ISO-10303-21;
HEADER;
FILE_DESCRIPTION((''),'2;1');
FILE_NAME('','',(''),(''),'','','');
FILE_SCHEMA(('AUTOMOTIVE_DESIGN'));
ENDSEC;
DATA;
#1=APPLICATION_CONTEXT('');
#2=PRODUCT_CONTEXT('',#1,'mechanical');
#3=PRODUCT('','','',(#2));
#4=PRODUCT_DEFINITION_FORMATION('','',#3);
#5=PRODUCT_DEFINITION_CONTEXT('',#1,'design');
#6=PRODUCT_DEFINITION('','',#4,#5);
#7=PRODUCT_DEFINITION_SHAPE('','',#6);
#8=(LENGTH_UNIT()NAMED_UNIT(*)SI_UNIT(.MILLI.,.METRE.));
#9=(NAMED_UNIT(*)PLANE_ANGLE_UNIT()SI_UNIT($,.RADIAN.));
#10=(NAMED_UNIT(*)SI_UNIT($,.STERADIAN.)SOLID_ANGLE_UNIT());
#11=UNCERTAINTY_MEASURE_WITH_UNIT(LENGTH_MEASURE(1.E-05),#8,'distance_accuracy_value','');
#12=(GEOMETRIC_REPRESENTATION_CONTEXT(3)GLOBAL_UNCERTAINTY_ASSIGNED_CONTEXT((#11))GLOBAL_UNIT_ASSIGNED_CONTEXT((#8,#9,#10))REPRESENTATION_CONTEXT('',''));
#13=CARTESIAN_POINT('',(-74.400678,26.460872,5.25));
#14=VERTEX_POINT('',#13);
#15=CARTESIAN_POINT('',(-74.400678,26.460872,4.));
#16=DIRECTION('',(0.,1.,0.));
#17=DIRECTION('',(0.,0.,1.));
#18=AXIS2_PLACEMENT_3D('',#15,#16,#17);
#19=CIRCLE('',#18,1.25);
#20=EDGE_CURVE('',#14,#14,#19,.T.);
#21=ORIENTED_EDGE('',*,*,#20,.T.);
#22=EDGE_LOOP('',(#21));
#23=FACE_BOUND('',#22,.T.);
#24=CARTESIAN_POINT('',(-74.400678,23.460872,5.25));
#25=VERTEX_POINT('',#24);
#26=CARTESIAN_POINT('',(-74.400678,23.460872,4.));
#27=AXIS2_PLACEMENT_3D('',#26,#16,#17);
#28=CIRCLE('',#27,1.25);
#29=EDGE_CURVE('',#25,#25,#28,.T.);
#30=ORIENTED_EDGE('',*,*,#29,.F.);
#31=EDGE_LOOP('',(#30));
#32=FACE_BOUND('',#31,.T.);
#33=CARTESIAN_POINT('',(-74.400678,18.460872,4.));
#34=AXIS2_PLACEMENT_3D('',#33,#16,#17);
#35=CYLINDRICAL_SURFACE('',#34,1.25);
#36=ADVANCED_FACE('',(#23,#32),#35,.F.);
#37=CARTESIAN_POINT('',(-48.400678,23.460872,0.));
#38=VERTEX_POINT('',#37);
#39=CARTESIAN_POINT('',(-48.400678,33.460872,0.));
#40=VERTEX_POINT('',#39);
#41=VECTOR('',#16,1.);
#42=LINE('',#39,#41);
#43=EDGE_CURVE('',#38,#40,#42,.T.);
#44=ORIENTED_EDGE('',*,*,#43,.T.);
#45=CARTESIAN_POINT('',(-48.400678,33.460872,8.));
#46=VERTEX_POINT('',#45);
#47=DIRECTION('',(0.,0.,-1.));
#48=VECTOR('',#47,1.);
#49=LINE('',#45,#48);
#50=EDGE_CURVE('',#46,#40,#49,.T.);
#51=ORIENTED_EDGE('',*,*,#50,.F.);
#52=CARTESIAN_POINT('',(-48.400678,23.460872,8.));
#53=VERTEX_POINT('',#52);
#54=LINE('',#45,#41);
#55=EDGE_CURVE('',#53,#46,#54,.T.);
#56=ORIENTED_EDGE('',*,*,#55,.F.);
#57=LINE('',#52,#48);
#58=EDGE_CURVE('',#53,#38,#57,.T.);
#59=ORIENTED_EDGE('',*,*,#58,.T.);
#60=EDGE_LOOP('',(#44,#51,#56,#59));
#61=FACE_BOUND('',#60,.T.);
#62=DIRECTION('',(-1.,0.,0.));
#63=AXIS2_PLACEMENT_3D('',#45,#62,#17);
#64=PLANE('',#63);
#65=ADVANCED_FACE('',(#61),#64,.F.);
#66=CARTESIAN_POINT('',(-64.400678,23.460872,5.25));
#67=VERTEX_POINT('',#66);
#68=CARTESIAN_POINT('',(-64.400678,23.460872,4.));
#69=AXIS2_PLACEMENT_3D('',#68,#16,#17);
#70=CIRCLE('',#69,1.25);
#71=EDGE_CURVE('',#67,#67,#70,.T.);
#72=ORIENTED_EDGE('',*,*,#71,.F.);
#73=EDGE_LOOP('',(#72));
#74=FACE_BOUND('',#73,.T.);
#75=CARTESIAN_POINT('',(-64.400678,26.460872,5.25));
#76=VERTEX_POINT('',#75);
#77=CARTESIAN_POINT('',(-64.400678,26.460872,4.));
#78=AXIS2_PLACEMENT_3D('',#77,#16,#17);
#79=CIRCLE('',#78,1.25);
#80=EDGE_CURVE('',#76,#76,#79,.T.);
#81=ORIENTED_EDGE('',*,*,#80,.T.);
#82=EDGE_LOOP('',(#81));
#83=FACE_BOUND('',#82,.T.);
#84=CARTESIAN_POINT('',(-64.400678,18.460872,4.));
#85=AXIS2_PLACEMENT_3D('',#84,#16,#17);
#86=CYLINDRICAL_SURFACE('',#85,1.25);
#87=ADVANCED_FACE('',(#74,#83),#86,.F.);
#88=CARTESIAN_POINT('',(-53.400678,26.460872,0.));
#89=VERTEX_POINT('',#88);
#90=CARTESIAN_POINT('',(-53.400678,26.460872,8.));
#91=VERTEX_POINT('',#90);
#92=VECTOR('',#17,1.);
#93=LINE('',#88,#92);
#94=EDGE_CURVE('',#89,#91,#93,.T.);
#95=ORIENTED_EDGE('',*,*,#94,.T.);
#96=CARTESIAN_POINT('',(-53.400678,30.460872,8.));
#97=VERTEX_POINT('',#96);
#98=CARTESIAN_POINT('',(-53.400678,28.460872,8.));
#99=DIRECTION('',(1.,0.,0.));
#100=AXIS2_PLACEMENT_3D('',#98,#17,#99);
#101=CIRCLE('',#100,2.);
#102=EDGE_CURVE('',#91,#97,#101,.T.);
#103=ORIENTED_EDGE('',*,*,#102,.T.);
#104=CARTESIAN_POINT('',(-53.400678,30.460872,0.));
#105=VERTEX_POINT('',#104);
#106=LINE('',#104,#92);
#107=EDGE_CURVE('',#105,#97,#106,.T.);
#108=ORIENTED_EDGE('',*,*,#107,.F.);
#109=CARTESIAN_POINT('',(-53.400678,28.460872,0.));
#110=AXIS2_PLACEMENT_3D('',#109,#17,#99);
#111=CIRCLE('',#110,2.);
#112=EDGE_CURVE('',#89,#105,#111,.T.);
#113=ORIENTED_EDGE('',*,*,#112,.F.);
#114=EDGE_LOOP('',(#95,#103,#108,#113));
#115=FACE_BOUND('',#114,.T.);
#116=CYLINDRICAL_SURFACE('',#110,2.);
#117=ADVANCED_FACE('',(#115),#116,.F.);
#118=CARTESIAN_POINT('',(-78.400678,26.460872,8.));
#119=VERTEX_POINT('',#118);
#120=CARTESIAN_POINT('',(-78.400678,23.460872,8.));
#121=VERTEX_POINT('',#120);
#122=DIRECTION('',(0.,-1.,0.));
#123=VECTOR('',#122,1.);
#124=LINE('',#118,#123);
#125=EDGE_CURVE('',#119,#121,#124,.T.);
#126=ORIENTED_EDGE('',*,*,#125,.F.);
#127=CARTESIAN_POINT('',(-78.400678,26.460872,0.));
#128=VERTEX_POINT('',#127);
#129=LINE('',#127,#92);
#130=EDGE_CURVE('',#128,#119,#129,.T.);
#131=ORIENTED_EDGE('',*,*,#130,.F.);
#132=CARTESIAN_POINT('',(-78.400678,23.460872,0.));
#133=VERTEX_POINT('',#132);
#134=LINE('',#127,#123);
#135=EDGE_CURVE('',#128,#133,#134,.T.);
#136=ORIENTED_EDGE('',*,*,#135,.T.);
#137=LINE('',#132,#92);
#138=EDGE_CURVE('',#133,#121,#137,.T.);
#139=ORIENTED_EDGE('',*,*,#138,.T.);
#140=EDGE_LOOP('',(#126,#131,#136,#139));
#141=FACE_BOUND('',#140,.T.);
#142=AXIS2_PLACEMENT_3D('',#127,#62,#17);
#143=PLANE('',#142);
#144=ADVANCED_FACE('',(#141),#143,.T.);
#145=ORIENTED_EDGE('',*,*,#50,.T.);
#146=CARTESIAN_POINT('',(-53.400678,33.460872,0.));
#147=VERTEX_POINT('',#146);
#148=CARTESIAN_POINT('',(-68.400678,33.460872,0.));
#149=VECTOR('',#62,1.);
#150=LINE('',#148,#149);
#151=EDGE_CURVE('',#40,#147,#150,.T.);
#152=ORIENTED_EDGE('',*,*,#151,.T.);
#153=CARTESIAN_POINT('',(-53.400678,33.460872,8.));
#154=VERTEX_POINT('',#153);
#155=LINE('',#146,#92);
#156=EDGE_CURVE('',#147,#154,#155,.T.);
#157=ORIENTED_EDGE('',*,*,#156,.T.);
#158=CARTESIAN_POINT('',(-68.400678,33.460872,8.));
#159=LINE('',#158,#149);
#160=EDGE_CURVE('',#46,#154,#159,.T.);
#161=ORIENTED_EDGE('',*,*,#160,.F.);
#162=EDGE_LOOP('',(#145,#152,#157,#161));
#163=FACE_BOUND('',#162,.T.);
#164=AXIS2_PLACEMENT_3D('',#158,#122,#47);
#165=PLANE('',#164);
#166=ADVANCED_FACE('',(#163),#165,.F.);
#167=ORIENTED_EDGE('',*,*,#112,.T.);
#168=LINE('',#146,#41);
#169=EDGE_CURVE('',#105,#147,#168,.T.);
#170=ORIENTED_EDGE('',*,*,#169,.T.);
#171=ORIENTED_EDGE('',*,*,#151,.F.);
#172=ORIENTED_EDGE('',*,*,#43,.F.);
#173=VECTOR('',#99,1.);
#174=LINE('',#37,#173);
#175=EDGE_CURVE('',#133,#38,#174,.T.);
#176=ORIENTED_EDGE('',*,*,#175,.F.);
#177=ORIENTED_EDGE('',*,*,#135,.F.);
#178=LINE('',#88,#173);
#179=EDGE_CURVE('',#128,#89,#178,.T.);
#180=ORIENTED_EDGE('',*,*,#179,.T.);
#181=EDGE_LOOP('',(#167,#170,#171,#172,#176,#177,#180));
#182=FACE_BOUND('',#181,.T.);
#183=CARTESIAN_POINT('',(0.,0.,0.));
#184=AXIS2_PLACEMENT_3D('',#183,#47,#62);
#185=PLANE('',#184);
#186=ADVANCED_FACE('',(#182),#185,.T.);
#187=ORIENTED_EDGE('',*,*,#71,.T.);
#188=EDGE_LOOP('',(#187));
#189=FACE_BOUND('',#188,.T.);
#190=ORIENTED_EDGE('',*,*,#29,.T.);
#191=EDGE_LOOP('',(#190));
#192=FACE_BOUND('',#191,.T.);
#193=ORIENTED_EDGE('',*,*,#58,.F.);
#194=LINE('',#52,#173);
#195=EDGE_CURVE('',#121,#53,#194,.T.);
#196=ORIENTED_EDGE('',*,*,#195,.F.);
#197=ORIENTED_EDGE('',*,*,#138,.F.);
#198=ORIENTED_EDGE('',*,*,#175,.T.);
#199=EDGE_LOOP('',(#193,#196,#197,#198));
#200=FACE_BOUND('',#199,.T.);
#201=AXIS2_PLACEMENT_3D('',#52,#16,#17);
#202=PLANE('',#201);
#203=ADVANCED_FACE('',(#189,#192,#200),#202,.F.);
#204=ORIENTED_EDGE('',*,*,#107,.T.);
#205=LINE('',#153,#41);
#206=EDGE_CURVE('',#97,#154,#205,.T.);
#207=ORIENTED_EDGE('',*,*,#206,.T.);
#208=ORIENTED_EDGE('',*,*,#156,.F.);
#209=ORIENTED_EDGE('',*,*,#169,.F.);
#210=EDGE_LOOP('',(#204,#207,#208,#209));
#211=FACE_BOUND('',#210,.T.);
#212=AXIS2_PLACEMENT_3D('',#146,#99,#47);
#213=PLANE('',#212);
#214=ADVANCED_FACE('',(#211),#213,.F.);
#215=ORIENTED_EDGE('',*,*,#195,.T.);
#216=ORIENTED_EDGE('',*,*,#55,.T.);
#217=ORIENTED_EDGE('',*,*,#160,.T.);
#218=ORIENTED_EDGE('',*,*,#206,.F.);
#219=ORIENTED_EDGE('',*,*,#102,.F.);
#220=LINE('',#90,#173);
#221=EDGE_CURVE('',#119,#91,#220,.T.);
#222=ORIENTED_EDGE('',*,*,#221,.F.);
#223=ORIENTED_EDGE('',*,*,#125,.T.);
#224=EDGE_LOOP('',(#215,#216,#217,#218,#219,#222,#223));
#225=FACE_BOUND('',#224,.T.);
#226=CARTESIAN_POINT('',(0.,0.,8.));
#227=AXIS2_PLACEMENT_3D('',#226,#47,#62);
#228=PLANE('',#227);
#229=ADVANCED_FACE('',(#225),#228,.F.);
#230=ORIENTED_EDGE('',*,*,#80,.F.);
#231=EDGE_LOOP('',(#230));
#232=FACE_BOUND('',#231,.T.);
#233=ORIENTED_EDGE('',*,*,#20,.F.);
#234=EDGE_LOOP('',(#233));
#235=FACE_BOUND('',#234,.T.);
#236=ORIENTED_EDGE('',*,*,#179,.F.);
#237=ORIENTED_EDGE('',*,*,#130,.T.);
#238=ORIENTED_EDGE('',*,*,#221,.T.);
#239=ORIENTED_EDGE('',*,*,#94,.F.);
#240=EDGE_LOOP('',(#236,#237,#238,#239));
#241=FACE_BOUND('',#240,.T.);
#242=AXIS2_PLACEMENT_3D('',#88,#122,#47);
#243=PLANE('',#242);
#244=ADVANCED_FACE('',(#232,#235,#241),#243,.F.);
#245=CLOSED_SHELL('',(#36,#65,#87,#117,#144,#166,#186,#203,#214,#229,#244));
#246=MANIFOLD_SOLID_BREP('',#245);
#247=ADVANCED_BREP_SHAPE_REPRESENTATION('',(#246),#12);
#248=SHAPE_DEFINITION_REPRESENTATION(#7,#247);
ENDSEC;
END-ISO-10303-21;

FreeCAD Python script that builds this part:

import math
import FreeCAD as App
import Part
import Sketcher

V = App.Vector


def add_polygon(sketch, points):
    """Adds a closed chain of lines whose ends are joined by coincident constraints."""
    first, n = sketch.GeometryCount, len(points)
    for a, b in zip(points, points[1:] + points[:1]):
        sketch.addGeometry(Part.LineSegment(App.Vector(*a, 0), App.Vector(*b, 0)), False)
    for i in range(n):
        sketch.addConstraint(Sketcher.Constraint("Coincident", first + i, 2, first + (i + 1) % n, 1))

doc = App.newDocument("Part")
body = doc.addObject("PartDesign::Body", "Body")

sketch1 = body.newObject("Sketcher::SketchObject", "Sketch")
sketch1.AttachmentSupport = (doc.getObject("XY_Plane"), [""])
sketch1.MapMode = "FlatFace"
add_polygon(sketch1, [(-68, 33), (-68, 23), (-48, 23), (-48, 33)])
sketch1.addConstraint([
    Sketcher.Constraint("Vertical", 0),
    Sketcher.Constraint("Horizontal", 1),
    Sketcher.Constraint("Vertical", 2),
    Sketcher.Constraint("Horizontal", 3),
    Sketcher.Constraint("DistanceX", 1, 1, 1, 2, 20.0),
    Sketcher.Constraint("DistanceY", 0, 2, 0, 1, 10.0),
    Sketcher.Constraint("DistanceX", 0, 2, -1, 1, 68.400678),
    Sketcher.Constraint("DistanceY", -1, 1, 0, 2, 23.460872),
])
pad1 = body.newObject("PartDesign::Pad", "Pad")
pad1.Profile = sketch1
pad1.Length = 8

sketch2 = body.newObject("Sketcher::SketchObject", "Sketch001")
sketch2.AttachmentSupport = (doc.getObject("XY_Plane"), [""])
sketch2.MapMode = "FlatFace"
sketch2.AttachmentOffset = App.Placement(V(0, 0, 8), App.Rotation())
sketch2.addGeometry([
    Part.LineSegment(V(-53.4, 30.5, 0), V(-53.4, 33.5, 0)),
    Part.LineSegment(V(-53.4, 33.5, 0), V(-68.4, 33.5, 0)),
    Part.LineSegment(V(-68.4, 33.5, 0), V(-68.4, 26.5, 0)),
    Part.LineSegment(V(-68.4, 26.5, 0), V(-53.4, 26.5, 0)),
    Part.ArcOfCircle(Part.Circle(V(-53.4, 28.5, 0), V(0, 0, 1), 2), math.radians(-90), math.radians(90)),
], False)
sketch2.addConstraint([
    Sketcher.Constraint("Coincident", 0, 2, 1, 1),
    Sketcher.Constraint("Coincident", 1, 2, 2, 1),
    Sketcher.Constraint("Coincident", 2, 2, 3, 1),
    Sketcher.Constraint("Tangent", 3, 2, 4, 1),
    Sketcher.Constraint("Coincident", 4, 2, 0, 1),
    Sketcher.Constraint("Vertical", 0),
    Sketcher.Constraint("Horizontal", 1),
    Sketcher.Constraint("Vertical", 2),
    Sketcher.Constraint("Horizontal", 3),
    Sketcher.Constraint("Vertical", 4, 3, 0, 2),
    Sketcher.Constraint("Radius", 4, 2.0),
    Sketcher.Constraint("DistanceX", 1, 2, 1, 1, 15.0),
    Sketcher.Constraint("DistanceY", 0, 1, 0, 2, 3.0),
    Sketcher.Constraint("DistanceX", 4, 3, -1, 1, 53.400678),
    Sketcher.Constraint("DistanceY", -1, 1, 4, 3, 28.460872),
])
pocket1 = body.newObject("PartDesign::Pocket", "Pocket")
pocket1.Profile = sketch2
pocket1.Length = 8

sketch3 = body.newObject("Sketcher::SketchObject", "Sketch002")
sketch3.AttachmentSupport = (doc.getObject("XY_Plane"), [""])
sketch3.MapMode = "FlatFace"
sketch3.AttachmentOffset = App.Placement(V(0, 0, 8), App.Rotation())
add_polygon(sketch3, [(-78.4, 26.5), (-78.4, 23.5), (-68.4, 23.5), (-68.4, 26.5)])
sketch3.addConstraint([
    Sketcher.Constraint("Vertical", 0),
    Sketcher.Constraint("Horizontal", 1),
    Sketcher.Constraint("Vertical", 2),
    Sketcher.Constraint("Horizontal", 3),
    Sketcher.Constraint("DistanceX", 1, 1, 1, 2, 10.0),
    Sketcher.Constraint("DistanceY", 0, 2, 0, 1, 3.0),
    Sketcher.Constraint("DistanceX", 0, 2, -1, 1, 78.400678),
    Sketcher.Constraint("DistanceY", -1, 1, 0, 2, 23.460872),
])
pad2 = body.newObject("PartDesign::Pad", "Pad001")
pad2.Profile = sketch3
pad2.Length = 8
pad2.Reversed = True

sketch4 = body.newObject("Sketcher::SketchObject", "Sketch003")
sketch4.AttachmentSupport = (doc.getObject("XZ_Plane"), [""])
sketch4.MapMode = "FlatFace"
sketch4.AttachmentOffset = App.Placement(V(0, 0, -26.460872), App.Rotation())
sketch4.addGeometry(Part.Circle(V(-74.4, 4, 0), V(0, 0, 1), 1.2), False)
sketch4.addConstraint([
    Sketcher.Constraint("Diameter", 0, 2.5),
    Sketcher.Constraint("DistanceY", -1, 1, 0, 3, 4.0),
    Sketcher.Constraint("DistanceX", 0, 3, -1, 1, 74.400678),
])
pocket2 = body.newObject("PartDesign::Pocket", "Pocket001")
pocket2.Profile = sketch4
pocket2.Length = 8
pocket2.Reversed = True

sketch5 = body.newObject("Sketcher::SketchObject", "Sketch004")
sketch5.AttachmentSupport = (doc.getObject("XZ_Plane"), [""])
sketch5.MapMode = "FlatFace"
sketch5.AttachmentOffset = App.Placement(V(0, 0, -26.460872), App.Rotation())
sketch5.addGeometry(Part.Circle(V(-64.4, 4, 0), V(0, 0, 1), 1.2), False)
sketch5.addConstraint([
    Sketcher.Constraint("Diameter", 0, 2.5),
    Sketcher.Constraint("DistanceY", -1, 1, 0, 3, 4.0),
    Sketcher.Constraint("DistanceX", 0, 3, -1, 1, 64.400678),
])
pocket3 = body.newObject("PartDesign::Pocket", "Pocket002")
pocket3.Profile = sketch5
pocket3.Length = 8
pocket3.Reversed = True

doc.recompute()
